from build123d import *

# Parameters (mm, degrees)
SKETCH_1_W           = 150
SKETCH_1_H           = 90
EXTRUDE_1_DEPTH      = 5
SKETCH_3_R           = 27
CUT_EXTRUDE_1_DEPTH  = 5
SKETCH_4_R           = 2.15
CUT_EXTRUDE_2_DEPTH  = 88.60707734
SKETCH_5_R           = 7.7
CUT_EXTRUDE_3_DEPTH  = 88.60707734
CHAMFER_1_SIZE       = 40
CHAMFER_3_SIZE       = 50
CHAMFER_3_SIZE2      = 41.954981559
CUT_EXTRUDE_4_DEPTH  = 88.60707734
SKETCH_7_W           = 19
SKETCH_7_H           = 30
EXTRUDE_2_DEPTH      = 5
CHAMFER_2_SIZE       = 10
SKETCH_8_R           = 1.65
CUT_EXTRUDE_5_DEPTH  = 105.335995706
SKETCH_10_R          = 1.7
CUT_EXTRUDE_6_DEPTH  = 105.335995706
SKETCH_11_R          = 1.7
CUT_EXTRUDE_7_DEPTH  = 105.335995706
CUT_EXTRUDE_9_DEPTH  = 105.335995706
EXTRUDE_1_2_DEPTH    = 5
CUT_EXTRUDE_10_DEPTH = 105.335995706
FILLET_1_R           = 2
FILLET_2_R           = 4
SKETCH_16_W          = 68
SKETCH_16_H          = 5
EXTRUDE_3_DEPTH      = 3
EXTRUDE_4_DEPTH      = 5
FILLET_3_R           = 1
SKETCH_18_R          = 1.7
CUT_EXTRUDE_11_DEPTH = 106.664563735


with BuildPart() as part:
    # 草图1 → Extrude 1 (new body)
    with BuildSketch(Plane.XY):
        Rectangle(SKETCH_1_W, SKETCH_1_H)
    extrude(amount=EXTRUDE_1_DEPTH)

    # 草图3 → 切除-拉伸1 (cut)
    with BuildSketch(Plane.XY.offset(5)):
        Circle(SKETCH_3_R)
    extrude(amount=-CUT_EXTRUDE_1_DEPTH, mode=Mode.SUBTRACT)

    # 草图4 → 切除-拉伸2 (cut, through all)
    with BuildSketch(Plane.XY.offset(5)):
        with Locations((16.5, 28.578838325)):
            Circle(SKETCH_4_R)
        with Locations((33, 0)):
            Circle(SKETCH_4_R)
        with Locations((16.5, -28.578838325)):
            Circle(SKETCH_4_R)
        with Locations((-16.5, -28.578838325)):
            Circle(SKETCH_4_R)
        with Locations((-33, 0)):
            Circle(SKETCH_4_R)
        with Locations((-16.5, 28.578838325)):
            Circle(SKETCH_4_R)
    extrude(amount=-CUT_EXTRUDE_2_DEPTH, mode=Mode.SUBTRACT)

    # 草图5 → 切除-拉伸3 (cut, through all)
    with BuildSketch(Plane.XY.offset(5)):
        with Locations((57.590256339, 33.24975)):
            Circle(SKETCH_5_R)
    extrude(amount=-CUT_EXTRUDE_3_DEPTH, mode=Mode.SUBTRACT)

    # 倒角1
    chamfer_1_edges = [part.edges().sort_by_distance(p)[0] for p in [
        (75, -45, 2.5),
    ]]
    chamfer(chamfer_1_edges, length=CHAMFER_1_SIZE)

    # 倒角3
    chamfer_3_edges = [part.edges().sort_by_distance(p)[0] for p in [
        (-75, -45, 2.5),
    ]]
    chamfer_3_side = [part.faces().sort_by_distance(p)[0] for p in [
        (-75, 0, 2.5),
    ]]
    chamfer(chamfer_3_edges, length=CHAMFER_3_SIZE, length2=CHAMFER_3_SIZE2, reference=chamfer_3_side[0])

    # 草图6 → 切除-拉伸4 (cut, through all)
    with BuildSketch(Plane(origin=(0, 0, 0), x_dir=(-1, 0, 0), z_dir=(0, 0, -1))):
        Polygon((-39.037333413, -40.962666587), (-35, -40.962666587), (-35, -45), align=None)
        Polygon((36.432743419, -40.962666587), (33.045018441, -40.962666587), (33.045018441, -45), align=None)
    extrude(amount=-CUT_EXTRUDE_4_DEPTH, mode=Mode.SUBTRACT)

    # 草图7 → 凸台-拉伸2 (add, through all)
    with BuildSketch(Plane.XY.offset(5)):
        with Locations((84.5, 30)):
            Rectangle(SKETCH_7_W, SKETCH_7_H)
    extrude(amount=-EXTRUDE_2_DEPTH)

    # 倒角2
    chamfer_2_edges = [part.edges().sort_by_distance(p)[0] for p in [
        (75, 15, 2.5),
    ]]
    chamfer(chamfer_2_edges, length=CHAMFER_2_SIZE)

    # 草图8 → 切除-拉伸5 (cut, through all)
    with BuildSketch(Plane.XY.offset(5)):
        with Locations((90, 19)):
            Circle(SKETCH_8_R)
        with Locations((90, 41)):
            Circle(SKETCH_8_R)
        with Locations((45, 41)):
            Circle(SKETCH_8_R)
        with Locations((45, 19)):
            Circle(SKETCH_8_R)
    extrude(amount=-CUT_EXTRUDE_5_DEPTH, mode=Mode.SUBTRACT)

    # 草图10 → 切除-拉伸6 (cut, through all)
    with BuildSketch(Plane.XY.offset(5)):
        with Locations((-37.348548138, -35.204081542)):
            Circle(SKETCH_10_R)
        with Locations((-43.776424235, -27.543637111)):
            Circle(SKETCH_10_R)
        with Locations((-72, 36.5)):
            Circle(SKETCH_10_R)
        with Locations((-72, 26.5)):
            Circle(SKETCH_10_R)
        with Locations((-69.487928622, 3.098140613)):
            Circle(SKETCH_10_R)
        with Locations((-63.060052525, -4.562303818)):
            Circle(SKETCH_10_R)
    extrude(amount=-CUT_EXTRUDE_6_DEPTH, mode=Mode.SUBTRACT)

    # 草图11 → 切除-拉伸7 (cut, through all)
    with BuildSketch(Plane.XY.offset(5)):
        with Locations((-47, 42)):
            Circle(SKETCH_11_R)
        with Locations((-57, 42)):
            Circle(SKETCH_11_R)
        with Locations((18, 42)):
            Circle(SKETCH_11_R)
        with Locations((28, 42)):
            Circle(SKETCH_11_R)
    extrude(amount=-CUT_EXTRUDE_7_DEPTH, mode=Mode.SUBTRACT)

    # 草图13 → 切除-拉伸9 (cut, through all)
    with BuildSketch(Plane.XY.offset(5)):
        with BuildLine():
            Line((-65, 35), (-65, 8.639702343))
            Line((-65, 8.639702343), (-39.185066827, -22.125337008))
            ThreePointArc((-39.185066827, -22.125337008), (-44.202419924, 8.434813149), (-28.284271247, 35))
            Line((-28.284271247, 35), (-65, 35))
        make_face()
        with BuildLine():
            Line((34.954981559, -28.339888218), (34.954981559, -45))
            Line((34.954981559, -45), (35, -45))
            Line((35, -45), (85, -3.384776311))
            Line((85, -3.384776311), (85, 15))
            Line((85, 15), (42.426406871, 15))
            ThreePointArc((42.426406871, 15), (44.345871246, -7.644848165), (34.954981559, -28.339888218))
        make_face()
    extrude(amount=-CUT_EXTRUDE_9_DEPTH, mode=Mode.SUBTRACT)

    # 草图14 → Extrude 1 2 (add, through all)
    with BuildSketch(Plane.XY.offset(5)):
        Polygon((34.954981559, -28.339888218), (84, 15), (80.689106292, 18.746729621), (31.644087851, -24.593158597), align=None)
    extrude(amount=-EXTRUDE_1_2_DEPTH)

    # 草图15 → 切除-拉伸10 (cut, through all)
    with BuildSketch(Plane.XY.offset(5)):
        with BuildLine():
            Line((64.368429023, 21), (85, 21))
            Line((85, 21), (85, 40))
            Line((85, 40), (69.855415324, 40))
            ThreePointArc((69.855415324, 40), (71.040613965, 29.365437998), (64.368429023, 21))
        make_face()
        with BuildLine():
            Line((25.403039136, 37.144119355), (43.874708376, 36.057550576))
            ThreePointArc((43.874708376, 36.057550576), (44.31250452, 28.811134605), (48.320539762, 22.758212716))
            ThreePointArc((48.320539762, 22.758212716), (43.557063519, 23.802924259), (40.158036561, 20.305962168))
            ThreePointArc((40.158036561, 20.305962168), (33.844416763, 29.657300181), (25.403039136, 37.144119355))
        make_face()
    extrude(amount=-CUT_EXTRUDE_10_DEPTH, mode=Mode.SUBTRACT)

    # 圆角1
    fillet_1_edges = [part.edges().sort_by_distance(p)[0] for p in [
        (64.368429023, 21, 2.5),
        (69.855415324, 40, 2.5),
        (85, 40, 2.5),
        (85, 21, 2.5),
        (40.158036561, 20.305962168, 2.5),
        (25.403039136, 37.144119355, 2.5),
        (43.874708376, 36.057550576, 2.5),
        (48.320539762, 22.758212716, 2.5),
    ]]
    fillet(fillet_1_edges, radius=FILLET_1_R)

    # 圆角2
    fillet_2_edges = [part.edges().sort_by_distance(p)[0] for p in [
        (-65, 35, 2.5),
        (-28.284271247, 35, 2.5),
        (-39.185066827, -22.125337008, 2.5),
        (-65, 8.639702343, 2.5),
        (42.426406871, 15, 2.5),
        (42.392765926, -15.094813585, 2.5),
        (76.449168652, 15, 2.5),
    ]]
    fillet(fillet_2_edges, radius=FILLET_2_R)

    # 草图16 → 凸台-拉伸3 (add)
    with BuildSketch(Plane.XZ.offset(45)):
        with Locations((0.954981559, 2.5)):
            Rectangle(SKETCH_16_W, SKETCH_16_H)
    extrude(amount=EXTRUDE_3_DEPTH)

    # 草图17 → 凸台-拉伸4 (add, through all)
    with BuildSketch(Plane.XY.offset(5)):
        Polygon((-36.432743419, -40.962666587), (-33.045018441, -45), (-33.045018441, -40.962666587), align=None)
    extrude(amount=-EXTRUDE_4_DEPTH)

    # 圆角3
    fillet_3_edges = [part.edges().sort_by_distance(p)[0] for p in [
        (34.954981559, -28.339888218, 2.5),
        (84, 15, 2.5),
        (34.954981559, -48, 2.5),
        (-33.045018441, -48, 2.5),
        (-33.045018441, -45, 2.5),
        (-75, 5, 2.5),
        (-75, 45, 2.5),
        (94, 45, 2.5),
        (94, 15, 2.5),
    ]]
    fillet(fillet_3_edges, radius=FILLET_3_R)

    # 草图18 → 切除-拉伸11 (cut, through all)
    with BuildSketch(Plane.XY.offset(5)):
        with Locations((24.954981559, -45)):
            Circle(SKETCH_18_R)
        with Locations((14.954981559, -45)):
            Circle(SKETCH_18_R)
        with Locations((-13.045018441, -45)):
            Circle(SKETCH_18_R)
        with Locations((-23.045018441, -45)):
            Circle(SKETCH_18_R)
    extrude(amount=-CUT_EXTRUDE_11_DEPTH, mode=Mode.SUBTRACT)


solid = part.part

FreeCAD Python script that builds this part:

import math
import FreeCAD as App
import Part
import Sketcher
Q = App.Units.Quantity


def edges_at(feature, points):
    """Names of the edges that pass closest to the given points."""
    edges = feature.Shape.Edges
    near = lambda p: min(range(len(edges)), key=lambda i: edges[i].distToShape(Part.Vertex(*p))[0])
    return sorted({f"Edge{near(p) + 1}" for p in points})

doc = App.newDocument("Part")
body = doc.addObject("PartDesign::Body", "Body")

# Sketch on XY plane
sketch1 = doc.addObject("Sketcher::SketchObject", "Sketch")
body.addObject(sketch1)
sketch1.AttachmentSupport = (doc.XY_Plane, [""])
sketch1.MapMode = "FlatFace"
sketch1.addGeometry(Part.LineSegment(App.Vector(-75, 45, 0), App.Vector(-75, -45, 0)), False)
sketch1.addGeometry(Part.LineSegment(App.Vector(-75, -45, 0), App.Vector(75, -45, 0)), False)
sketch1.addGeometry(Part.LineSegment(App.Vector(75, -45, 0), App.Vector(75, 45, 0)), False)
sketch1.addGeometry(Part.LineSegment(App.Vector(75, 45, 0), App.Vector(-75, 45, 0)), False)
sketch1.addConstraint(Sketcher.Constraint("Coincident", 0, 2, 1, 1))
sketch1.addConstraint(Sketcher.Constraint("Coincident", 1, 2, 2, 1))
sketch1.addConstraint(Sketcher.Constraint("Coincident", 2, 2, 3, 1))
sketch1.addConstraint(Sketcher.Constraint("Coincident", 3, 2, 0, 1))
sketch1.addConstraint(Sketcher.Constraint("Vertical", 0))
sketch1.addConstraint(Sketcher.Constraint("Horizontal", 1))
sketch1.addConstraint(Sketcher.Constraint("Vertical", 2))
sketch1.addConstraint(Sketcher.Constraint("Horizontal", 3))
sketch1.addConstraint(Sketcher.Constraint("Symmetric", 0, 2, 2, 2, -1, 1))
sketch1.addConstraint(Sketcher.Constraint("DistanceX", 1, 1, 1, 2, Q("150 mm")))
sketch1.addConstraint(Sketcher.Constraint("DistanceY", 0, 2, 0, 1, Q("90 mm")))
pad1 = doc.addObject("PartDesign::Pad", "Pad")
body.addObject(pad1)
pad1.Profile = sketch1
pad1.Length = 5

# Sketch on XY plane
sketch2 = doc.addObject("Sketcher::SketchObject", "Sketch001")
body.addObject(sketch2)
sketch2.AttachmentSupport = (doc.XY_Plane, [""])
sketch2.MapMode = "FlatFace"
sketch2.AttachmentOffset = App.Placement(App.Vector(0, 0, 5), App.Rotation())
sketch2.addGeometry(Part.Circle(App.Vector(0, 0, 0), App.Vector(0, 0, 1), 27), False)
sketch2.addConstraint(Sketcher.Constraint("Coincident", 0, 3, -1, 1))
sketch2.addConstraint(Sketcher.Constraint("Diameter", 0, Q("54 mm")))
pocket1 = doc.addObject("PartDesign::Pocket", "Pocket")
body.addObject(pocket1)
pocket1.Profile = sketch2
pocket1.Length = 5

# Sketch on XY plane
sketch3 = doc.addObject("Sketcher::SketchObject", "Sketch002")
body.addObject(sketch3)
sketch3.AttachmentSupport = (doc.XY_Plane, [""])
sketch3.MapMode = "FlatFace"
sketch3.AttachmentOffset = App.Placement(App.Vector(0, 0, 5), App.Rotation())
sketch3.addGeometry(Part.Circle(App.Vector(16.5, 28.578838, 0), App.Vector(0, 0, 1), 2.15), False)
sketch3.addGeometry(Part.Circle(App.Vector(33, 0, 0), App.Vector(0, 0, 1), 2.15), False)
sketch3.addGeometry(Part.Circle(App.Vector(16.5, -28.578838, 0), App.Vector(0, 0, 1), 2.15), False)
sketch3.addGeometry(Part.Circle(App.Vector(-16.5, -28.578838, 0), App.Vector(0, 0, 1), 2.15), False)
sketch3.addGeometry(Part.Circle(App.Vector(-33, 0, 0), App.Vector(0, 0, 1), 2.15), False)
sketch3.addGeometry(Part.Circle(App.Vector(-16.5, 28.578838, 0), App.Vector(0, 0, 1), 2.15), False)
sketch3.addConstraint(Sketcher.Constraint("Equal", 0, 1))
sketch3.addConstraint(Sketcher.Constraint("Equal", 1, 2))
sketch3.addConstraint(Sketcher.Constraint("Equal", 2, 3))
sketch3.addConstraint(Sketcher.Constraint("Equal", 3, 4))
sketch3.addConstraint(Sketcher.Constraint("Equal", 4, 5))
sketch3.addConstraint(Sketcher.Constraint("Symmetric", 0, 3, 3, 3, -1, 1))
sketch3.addConstraint(Sketcher.Constraint("Symmetric", 1, 3, 4, 3, -1, 1))
sketch3.addConstraint(Sketcher.Constraint("Symmetric", 2, 3, 5, 3, -1, 1))
sketch3.addConstraint(Sketcher.Constraint("Symmetric", 2, 3, 3, 3, -2))
sketch3.addConstraint(Sketcher.Constraint("PointOnObject", 1, 3, -1))
sketch3.addConstraint(Sketcher.Constraint("Diameter", 0, Q("4.3 mm")))
sketch3.addConstraint(Sketcher.Constraint("DistanceX", -1, 1, 1, 3, Q("33 mm")))
sketch3.addConstraint(Sketcher.Constraint("DistanceX", 3, 3, 2, 3, Q("33 mm")))
sketch3.addConstraint(Sketcher.Constraint("DistanceY", -1, 1, 0, 3, Q("28.578838 mm")))
pocket2 = doc.addObject("PartDesign::Pocket", "Pocket001")
body.addObject(pocket2)
pocket2.Profile = sketch3
pocket2.Type = "ThroughAll"

# Sketch on XY plane
sketch4 = doc.addObject("Sketcher::SketchObject", "Sketch003")
body.addObject(sketch4)
sketch4.AttachmentSupport = (doc.XY_Plane, [""])
sketch4.MapMode = "FlatFace"
sketch4.AttachmentOffset = App.Placement(App.Vector(0, 0, 5), App.Rotation())
sketch4.addGeometry(Part.Circle(App.Vector(57.590256, 33.24975, 0), App.Vector(0, 0, 1), 7.7), False)
sketch4.addConstraint(Sketcher.Constraint("Diameter", 0, Q("15.4 mm")))
sketch4.addConstraint(Sketcher.Constraint("DistanceY", -1, 1, 0, 3, Q("33.24975 mm")))
sketch4.addConstraint(Sketcher.Constraint("DistanceX", -1, 1, 0, 3, Q("57.590256 mm")))
pocket3 = doc.addObject("PartDesign::Pocket", "Pocket002")
body.addObject(pocket3)
pocket3.Profile = sketch4
pocket3.Type = "ThroughAll"
doc.recompute()

chamfer = doc.addObject("PartDesign::Chamfer", "Chamfer")
body.addObject(chamfer)
chamfer.Base = (pocket3, edges_at(pocket3, [(75, -45, 2.5)]))
chamfer.Size = 40
doc.recompute()

chamfer2 = doc.addObject("PartDesign::Chamfer", "Chamfer001")
body.addObject(chamfer2)
chamfer2.Base = (chamfer, edges_at(chamfer, [(-75, -45, 2.5)]))
chamfer2.ChamferType = "Two distances"
chamfer2.Size = 50
chamfer2.Size2 = 41.954982
chamfer2.FlipDirection = True

# Sketch on XY plane
sketch5 = doc.addObject("Sketcher::SketchObject", "Sketch004")
body.addObject(sketch5)
sketch5.AttachmentSupport = (doc.XY_Plane, [""])
sketch5.MapMode = "FlatFace"
sketch5.addGeometry(Part.LineSegment(App.Vector(35, -40.962667, 0), App.Vector(39.037333, -40.962667, 0)), False)
sketch5.addGeometry(Part.LineSegment(App.Vector(39.037333, -40.962667, 0), App.Vector(35, -45, 0)), False)
sketch5.addGeometry(Part.LineSegment(App.Vector(35, -45, 0), App.Vector(35, -40.962667, 0)), False)
sketch5.addGeometry(Part.LineSegment(App.Vector(-36.432743, -40.962667, 0), App.Vector(-33.045018, -40.962667, 0)), False)
sketch5.addGeometry(Part.LineSegment(App.Vector(-33.045018, -40.962667, 0), App.Vector(-33.045018, -45, 0)), False)
sketch5.addGeometry(Part.LineSegment(App.Vector(-33.045018, -45, 0), App.Vector(-36.432743, -40.962667, 0)), False)
sketch5.addConstraint(Sketcher.Constraint("Coincident", 0, 2, 1, 1))
sketch5.addConstraint(Sketcher.Constraint("Coincident", 1, 2, 2, 1))
sketch5.addConstraint(Sketcher.Constraint("Coincident", 2, 2, 0, 1))
sketch5.addConstraint(Sketcher.Constraint("Coincident", 3, 2, 4, 1))
sketch5.addConstraint(Sketcher.Constraint("Coincident", 4, 2, 5, 1))
sketch5.addConstraint(Sketcher.Constraint("Coincident", 5, 2, 3, 1))
sketch5.addConstraint(Sketcher.Constraint("Horizontal", 0))
sketch5.addConstraint(Sketcher.Constraint("Vertical", 2))
sketch5.addConstraint(Sketcher.Constraint("Horizontal", 3))
sketch5.addConstraint(Sketcher.Constraint("Vertical", 4))
sketch5.addConstraint(Sketcher.Constraint("Horizontal", 2, 2, 3, 2))
sketch5.addConstraint(Sketcher.Constraint("Horizontal", 1, 2, 4, 2))
sketch5.addConstraint(Sketcher.Constraint("Equal", 0, 2))
sketch5.addConstraint(Sketcher.Constraint("Angle", 5, Q("130 deg")))
sketch5.addConstraint(Sketcher.Constraint("DistanceX", -1, 1, 1, 2, Q("35 mm")))
sketch5.addConstraint(Sketcher.Constraint("DistanceY", 1, 2, -1, 1, Q("45 mm")))
sketch5.addConstraint(Sketcher.Constraint("Distance", 1, Q("5.709652 mm")))
sketch5.addConstraint(Sketcher.Constraint("DistanceX", 3, 2, -1, 1, Q("33.045018 mm")))
pocket4 = doc.addObject("PartDesign::Pocket", "Pocket003")
body.addObject(pocket4)
pocket4.Profile = sketch5
pocket4.Type = "ThroughAll"
pocket4.Reversed = True

# Sketch on XY plane
sketch6 = doc.addObject("Sketcher::SketchObject", "Sketch005")
body.addObject(sketch6)
sketch6.AttachmentSupport = (doc.XY_Plane, [""])
sketch6.MapMode = "FlatFace"
sketch6.AttachmentOffset = App.Placement(App.Vector(0, 0, 5), App.Rotation())
sketch6.addGeometry(Part.LineSegment(App.Vector(75, 45, 0), App.Vector(75, 15, 0)), False)
sketch6.addGeometry(Part.LineSegment(App.Vector(75, 15, 0), App.Vector(94, 15, 0)), False)
sketch6.addGeometry(Part.LineSegment(App.Vector(94, 15, 0), App.Vector(94, 45, 0)), False)
sketch6.addGeometry(Part.LineSegment(App.Vector(94, 45, 0), App.Vector(75, 45, 0)), False)
sketch6.addConstraint(Sketcher.Constraint("Coincident", 0, 2, 1, 1))
sketch6.addConstraint(Sketcher.Constraint("Coincident", 1, 2, 2, 1))
sketch6.addConstraint(Sketcher.Constraint("Coincident", 2, 2, 3, 1))
sketch6.addConstraint(Sketcher.Constraint("Coincident", 3, 2, 0, 1))
sketch6.addConstraint(Sketcher.Constraint("Vertical", 0))
sketch6.addConstraint(Sketcher.Constraint("Horizontal", 1))
sketch6.addConstraint(Sketcher.Constraint("Vertical", 2))
sketch6.addConstraint(Sketcher.Constraint("Horizontal", 3))
sketch6.addConstraint(Sketcher.Constraint("DistanceX", 1, 1, 1, 2, Q("19 mm")))
sketch6.addConstraint(Sketcher.Constraint("DistanceY", 0, 2, 0, 1, Q("30 mm")))
sketch6.addConstraint(Sketcher.Constraint("DistanceX", -1, 1, 0, 2, Q("75 mm")))
sketch6.addConstraint(Sketcher.Constraint("DistanceY", -1, 1, 0, 2, Q("15 mm")))
pad2 = doc.addObject("PartDesign::Pad", "Pad001")
body.addObject(pad2)
pad2.Profile = sketch6
pad2.Length = 5
pad2.Reversed = True
doc.recompute()

chamfer3 = doc.addObject("PartDesign::Chamfer", "Chamfer002")
body.addObject(chamfer3)
chamfer3.Base = (pad2, edges_at(pad2, [(75, 15, 2.5)]))
chamfer3.Size = 10

# Sketch on XY plane
sketch7 = doc.addObject("Sketcher::SketchObject", "Sketch006")
body.addObject(sketch7)
sketch7.AttachmentSupport = (doc.XY_Plane, [""])
sketch7.MapMode = "FlatFace"
sketch7.AttachmentOffset = App.Placement(App.Vector(0, 0, 5), App.Rotation())
sketch7.addGeometry(Part.Circle(App.Vector(90, 19, 0), App.Vector(0, 0, 1), 1.65), False)
sketch7.addGeometry(Part.Circle(App.Vector(90, 41, 0), App.Vector(0, 0, 1), 1.65), False)
sketch7.addGeometry(Part.Circle(App.Vector(45, 41, 0), App.Vector(0, 0, 1), 1.65), False)
sketch7.addGeometry(Part.Circle(App.Vector(45, 19, 0), App.Vector(0, 0, 1), 1.65), False)
sketch7.addConstraint(Sketcher.Constraint("Equal", 0, 1))
sketch7.addConstraint(Sketcher.Constraint("Equal", 1, 2))
sketch7.addConstraint(Sketcher.Constraint("Equal", 2, 3))
sketch7.addConstraint(Sketcher.Constraint("Horizontal", 1, 3, 2, 3))
sketch7.addConstraint(Sketcher.Constraint("Horizontal", 0, 3, 3, 3))
sketch7.addConstraint(Sketcher.Constraint("Vertical", 0, 3, 1, 3))
sketch7.addConstraint(Sketcher.Constraint("Vertical", 2, 3, 3, 3))
sketch7.addConstraint(Sketcher.Constraint("Diameter", 0, Q("3.3 mm")))
sketch7.addConstraint(Sketcher.Constraint("DistanceX", -1, 1, 0, 3, Q("90 mm")))
sketch7.addConstraint(Sketcher.Constraint("DistanceY", -1, 1, 0, 3, Q("19 mm")))
sketch7.addConstraint(Sketcher.Constraint("DistanceY", -1, 1, 1, 3, Q("41 mm")))
sketch7.addConstraint(Sketcher.Constraint("DistanceX", -1, 1, 2, 3, Q("45 mm")))
pocket5 = doc.addObject("PartDesign::Pocket", "Pocket004")
body.addObject(pocket5)
pocket5.Profile = sketch7
pocket5.Type = "ThroughAll"

# Sketch on XY plane
sketch8 = doc.addObject("Sketcher::SketchObject", "Sketch007")
body.addObject(sketch8)
sketch8.AttachmentSupport = (doc.XY_Plane, [""])
sketch8.MapMode = "FlatFace"
sketch8.AttachmentOffset = App.Placement(App.Vector(0, 0, 5), App.Rotation())
sketch8.addGeometry(Part.Circle(App.Vector(-37.348548, -35.204082, 0), App.Vector(0, 0, 1), 1.7), False)
sketch8.addGeometry(Part.Circle(App.Vector(-43.776424, -27.543637, 0), App.Vector(0, 0, 1), 1.7), False)
sketch8.addGeometry(Part.Circle(App.Vector(-72, 36.5, 0), App.Vector(0, 0, 1), 1.7), False)
sketch8.addGeometry(Part.Circle(App.Vector(-72, 26.5, 0), App.Vector(0, 0, 1), 1.7), False)
sketch8.addGeometry(Part.Circle(App.Vector(-69.487929, 3.098141, 0), App.Vector(0, 0, 1), 1.7), False)
sketch8.addGeometry(Part.Circle(App.Vector(-63.060053, -4.562304, 0), App.Vector(0, 0, 1), 1.7), False)
sketch8.addConstraint(Sketcher.Constraint("Equal", 0, 1))
sketch8.addConstraint(Sketcher.Constraint("Equal", 1, 2))
sketch8.addConstraint(Sketcher.Constraint("Equal", 2, 3))
sketch8.addConstraint(Sketcher.Constraint("Equal", 3, 4))
sketch8.addConstraint(Sketcher.Constraint("Equal", 4, 5))
sketch8.addConstraint(Sketcher.Constraint("Vertical", 2, 3, 3, 3))
sketch8.addConstraint(Sketcher.Constraint("Diameter", 0, Q("3.4 mm")))
sketch8.addConstraint(Sketcher.Constraint("DistanceX", 2, 3, -1, 1, Q("72 mm")))
sketch8.addConstraint(Sketcher.Constraint("DistanceY", 3, 3, 2, 3, Q("10 mm")))
sketch8.addConstraint(Sketcher.Constraint("DistanceY", -1, 1, 2, 3, Q("36.5 mm")))
sketch8.addConstraint(Sketcher.Constraint("DistanceX", 0, 3, -1, 1, Q("37.348548 mm")))
sketch8.addConstraint(Sketcher.Constraint("DistanceY", 0, 3, -1, 1, Q("35.204082 mm")))
sketch8.addConstraint(Sketcher.Constraint("DistanceX", 4, 3, -1, 1, Q("69.487929 mm")))
sketch8.addConstraint(Sketcher.Constraint("DistanceY", -1, 1, 4, 3, Q("3.098141 mm")))
sketch8.addConstraint(Sketcher.Constraint("DistanceX", 5, 3, 1, 3, Q("19.283628 mm")))
sketch8.addConstraint(Sketcher.Constraint("DistanceX", 1, 3, -1, 1, Q("43.776424 mm")))
sketch8.addConstraint(Sketcher.Constraint("DistanceY", 1, 3, -1, 1, Q("27.543637 mm")))
sketch8.addConstraint(Sketcher.Constraint("DistanceY", 5, 3, -1, 1, Q("4.562304 mm")))
pocket6 = doc.addObject("PartDesign::Pocket", "Pocket005")
body.addObject(pocket6)
pocket6.Profile = sketch8
pocket6.Type = "ThroughAll"

# Sketch on XY plane
sketch9 = doc.addObject("Sketcher::SketchObject", "Sketch008")
body.addObject(sketch9)
sketch9.AttachmentSupport = (doc.XY_Plane, [""])
sketch9.MapMode = "FlatFace"
sketch9.AttachmentOffset = App.Placement(App.Vector(0, 0, 5), App.Rotation())
sketch9.addGeometry(Part.Circle(App.Vector(-47, 42, 0), App.Vector(0, 0, 1), 1.7), False)
sketch9.addGeometry(Part.Circle(App.Vector(-57, 42, 0), App.Vector(0, 0, 1), 1.7), False)
sketch9.addGeometry(Part.Circle(App.Vector(18, 42, 0), App.Vector(0, 0, 1), 1.7), False)
sketch9.addGeometry(Part.Circle(App.Vector(28, 42, 0), App.Vector(0, 0, 1), 1.7), False)
sketch9.addConstraint(Sketcher.Constraint("Equal", 0, 1))
sketch9.addConstraint(Sketcher.Constraint("Equal", 1, 2))
sketch9.addConstraint(Sketcher.Constraint("Equal", 2, 3))
sketch9.addConstraint(Sketcher.Constraint("Horizontal", 0, 3, 1, 3))
sketch9.addConstraint(Sketcher.Constraint("Horizontal", 1, 3, 2, 3))
sketch9.addConstraint(Sketcher.Constraint("Horizontal", 2, 3, 3, 3))
sketch9.addConstraint(Sketcher.Constraint("Diameter", 0, Q("3.4 mm")))
sketch9.addConstraint(Sketcher.Constraint("DistanceX", 0, 3, -1, 1, Q("47 mm")))
sketch9.addConstraint(Sketcher.Constraint("DistanceY", -1, 1, 0, 3, Q("42 mm")))
sketch9.addConstraint(Sketcher.Constraint("DistanceX", 1, 3, -1, 1, Q("57 mm")))
sketch9.addConstraint(Sketcher.Constraint("DistanceX", -1, 1, 2, 3, Q("18 mm")))
sketch9.addConstraint(Sketcher.Constraint("DistanceX", -1, 1, 3, 3, Q("28 mm")))
pocket7 = doc.addObject("PartDesign::Pocket", "Pocket006")
body.addObject(pocket7)
pocket7.Profile = sketch9
pocket7.Type = "ThroughAll"

# Sketch on XY plane
sketch10 = doc.addObject("Sketcher::SketchObject", "Sketch009")
body.addObject(sketch10)
sketch10.AttachmentSupport = (doc.XY_Plane, [""])
sketch10.MapMode = "FlatFace"
sketch10.AttachmentOffset = App.Placement(App.Vector(0, 0, 5), App.Rotation())
sketch10.addGeometry(Part.LineSegment(App.Vector(-65, 35, 0), App.Vector(-65, 8.639702, 0)), False)
sketch10.addGeometry(Part.LineSegment(App.Vector(-65, 8.639702, 0), App.Vector(-39.185067, -22.125337, 0)), False)
sketch10.addGeometry(Part.ArcOfCircle(Part.Circle(App.Vector(0, 0, 0), App.Vector(0, 0, 1), 45), math.radians(128.942441), math.radians(209.450678)), False)
sketch10.addGeometry(Part.LineSegment(App.Vector(-28.284271, 35, 0), App.Vector(-65, 35, 0)), False)
sketch10.addGeometry(Part.LineSegment(App.Vector(34.954982, -28.339888, 0), App.Vector(34.954982, -45, 0)), False)
sketch10.addGeometry(Part.LineSegment(App.Vector(34.954982, -45, 0), App.Vector(35, -45, 0)), False)
sketch10.addGeometry(Part.LineSegment(App.Vector(35, -45, 0), App.Vector(85, -3.384776, 0)), False)
sketch10.addGeometry(Part.LineSegment(App.Vector(85, -3.384776, 0), App.Vector(85, 15, 0)), False)
sketch10.addGeometry(Part.LineSegment(App.Vector(85, 15, 0), App.Vector(42.426407, 15, 0)), False)
sketch10.addGeometry(Part.ArcOfCircle(Part.Circle(App.Vector(0, 0, 0), App.Vector(0, 0, 1), 45), math.radians(-39.033546), math.radians(19.471221)), False)
sketch10.addConstraint(Sketcher.Constraint("Coincident", 0, 2, 1, 1))
sketch10.addConstraint(Sketcher.Constraint("Coincident", 1, 2, 2, 2))
sketch10.addConstraint(Sketcher.Constraint("Coincident", 2, 1, 3, 1))
sketch10.addConstraint(Sketcher.Constraint("Coincident", 3, 2, 0, 1))
sketch10.addConstraint(Sketcher.Constraint("Coincident", 4, 2, 5, 1))
sketch10.addConstraint(Sketcher.Constraint("Coincident", 5, 2, 6, 1))
sketch10.addConstraint(Sketcher.Constraint("Coincident", 6, 2, 7, 1))
sketch10.addConstraint(Sketcher.Constraint("Coincident", 7, 2, 8, 1))
sketch10.addConstraint(Sketcher.Constraint("Coincident", 8, 2, 9, 2))
sketch10.addConstraint(Sketcher.Constraint("Coincident", 9, 1, 4, 1))
sketch10.addConstraint(Sketcher.Constraint("Vertical", 0))
sketch10.addConstraint(Sketcher.Constraint("Horizontal", 3))
sketch10.addConstraint(Sketcher.Constraint("Vertical", 4))
sketch10.addConstraint(Sketcher.Constraint("Horizontal", 5))
sketch10.addConstraint(Sketcher.Constraint("Vertical", 7))
sketch10.addConstraint(Sketcher.Constraint("Horizontal", 8))
sketch10.addConstraint(Sketcher.Constraint("Coincident", 2, 3, -1, 1))
sketch10.addConstraint(Sketcher.Constraint("Coincident", 9, 3, -1, 1))
sketch10.addConstraint(Sketcher.Constraint("Equal", 2, 9))
sketch10.addConstraint(Sketcher.Constraint("Radius", 2, Q("45 mm")))
sketch10.addConstraint(Sketcher.Constraint("Angle", 1, Q("-50 deg")))
sketch10.addConstraint(Sketcher.Constraint("DistanceX", 0, 2, -1, 1, Q("65 mm")))
sketch10.addConstraint(Sketcher.Constraint("DistanceY", -1, 1, 2, 1, Q("35 mm")))
sketch10.addConstraint(Sketcher.Constraint("DistanceY", 4, 2, -1, 1, Q("45 mm")))
sketch10.addConstraint(Sketcher.Constraint("DistanceX", -1, 1, 5, 2, Q("35 mm")))
sketch10.addConstraint(Sketcher.Constraint("DistanceX", -1, 1, 6, 2, Q("85 mm")))
sketch10.addConstraint(Sketcher.Constraint("DistanceY", -1, 1, 7, 2, Q("15 mm")))
sketch10.addConstraint(Sketcher.Constraint("DistanceX", 5, 1, 5, 2, Q("0.045018 mm")))
sketch10.addConstraint(Sketcher.Constraint("DistanceY", 0, 2, 0, 1, Q("26.360298 mm")))
sketch10.addConstraint(Sketcher.Constraint("DistanceY", 7, 1, 7, 2, Q("18.384776 mm")))
pocket8 = doc.addObject("PartDesign::Pocket", "Pocket007")
body.addObject(pocket8)
pocket8.Profile = sketch10
pocket8.Type = "ThroughAll"

# Sketch on XY plane
sketch11 = doc.addObject("Sketcher::SketchObject", "Sketch010")
body.addObject(sketch11)
sketch11.AttachmentSupport = (doc.XY_Plane, [""])
sketch11.MapMode = "FlatFace"
sketch11.AttachmentOffset = App.Placement(App.Vector(0, 0, 5), App.Rotation())
sketch11.addGeometry(Part.LineSegment(App.Vector(34.954982, -28.339888, 0), App.Vector(84, 15, 0)), False)
sketch11.addGeometry(Part.LineSegment(App.Vector(84, 15, 0), App.Vector(80.689106, 18.74673, 0)), False)
sketch11.addGeometry(Part.LineSegment(App.Vector(80.689106, 18.74673, 0), App.Vector(31.644088, -24.593159, 0)), False)
sketch11.addGeometry(Part.LineSegment(App.Vector(31.644088, -24.593159, 0), App.Vector(34.954982, -28.339888, 0)), False)
sketch11.addConstraint(Sketcher.Constraint("Coincident", 0, 2, 1, 1))
sketch11.addConstraint(Sketcher.Constraint("Coincident", 1, 2, 2, 1))
sketch11.addConstraint(Sketcher.Constraint("Coincident", 2, 2, 3, 1))
sketch11.addConstraint(Sketcher.Constraint("Coincident", 3, 2, 0, 1))
sketch11.addConstraint(Sketcher.Constraint("Perpendicular", 0, 1))
sketch11.addConstraint(Sketcher.Constraint("Perpendicular", 1, 2))
sketch11.addConstraint(Sketcher.Constraint("Perpendicular", 2, 3))
sketch11.addConstraint(Sketcher.Constraint("Distance", 1, Q("5 mm")))
sketch11.addConstraint(Sketcher.Constraint("DistanceX", -1, 1, 0, 2, Q("84 mm")))
sketch11.addConstraint(Sketcher.Constraint("DistanceY", -1, 1, 0, 2, Q("15 mm")))
sketch11.addConstraint(Sketcher.Constraint("DistanceY", -1, 1, 1, 2, Q("18.74673 mm")))
sketch11.addConstraint(Sketcher.Constraint("DistanceY", 2, 2, -1, 1, Q("24.593159 mm")))
pad3 = doc.addObject("PartDesign::Pad", "Pad002")
body.addObject(pad3)
pad3.Profile = sketch11
pad3.Length = 5
pad3.Reversed = True

# Sketch on XY plane
sketch12 = doc.addObject("Sketcher::SketchObject", "Sketch011")
body.addObject(sketch12)
sketch12.AttachmentSupport = (doc.XY_Plane, [""])
sketch12.MapMode = "FlatFace"
sketch12.AttachmentOffset = App.Placement(App.Vector(0, 0, 5), App.Rotation())
sketch12.addGeometry(Part.LineSegment(App.Vector(64.368429, 21, 0), App.Vector(85, 21, 0)), False)
sketch12.addGeometry(Part.LineSegment(App.Vector(85, 21, 0), App.Vector(85, 40, 0)), False)
sketch12.addGeometry(Part.LineSegment(App.Vector(85, 40, 0), App.Vector(69.855415, 40, 0)), False)
sketch12.addGeometry(Part.ArcOfCircle(Part.Circle(App.Vector(57.590256, 33.24975, 0), App.Vector(0, 0, 1), 14), math.radians(-61.042862), math.radians(28.826617)), False)
sketch12.addGeometry(Part.LineSegment(App.Vector(43.874708, 36.057551, 0), App.Vector(25.403039, 37.144119, 0)), False)
sketch12.addGeometry(Part.ArcOfCircle(Part.Circle(App.Vector(0, 0, 0), App.Vector(0, 0, 1), 45), math.radians(26.8235), math.radians(55.631591)), False)
sketch12.addGeometry(Part.ArcOfCircle(Part.Circle(App.Vector(45, 19, 0), App.Vector(0, 0, 1), 5.014992), math.radians(48.538043), math.radians(164.905513)), False)
sketch12.addGeometry(Part.ArcOfCircle(Part.Circle(App.Vector(57.590256, 33.24975, 0), App.Vector(0, 0, 1), 14), math.radians(168.430456), math.radians(228.538043)), False)
sketch12.addConstraint(Sketcher.Constraint("Coincident", 0, 2, 1, 1))
sketch12.addConstraint(Sketcher.Constraint("Coincident", 1, 2, 2, 1))
sketch12.addConstraint(Sketcher.Constraint("Coincident", 2, 2, 3, 2))
sketch12.addConstraint(Sketcher.Constraint("Coincident", 3, 1, 0, 1))
sketch12.addConstraint(Sketcher.Constraint("Coincident", 4, 2, 5, 2))
sketch12.addConstraint(Sketcher.Constraint("Coincident", 5, 1, 6, 2))
sketch12.addConstraint(Sketcher.Constraint("Tangent", 6, 1, 7, 2))
sketch12.addConstraint(Sketcher.Constraint("Coincident", 7, 1, 4, 1))
sketch12.addConstraint(Sketcher.Constraint("Horizontal", 0))
sketch12.addConstraint(Sketcher.Constraint("Vertical", 1))
sketch12.addConstraint(Sketcher.Constraint("Horizontal", 2))
sketch12.addConstraint(Sketcher.Constraint("Coincident", 5, 3, -1, 1))
sketch12.addConstraint(Sketcher.Constraint("Coincident", 7, 3, 3, 3))
sketch12.addConstraint(Sketcher.Constraint("Equal", 3, 7))
sketch12.addConstraint(Sketcher.Constraint("Radius", 3, Q("14 mm")))
sketch12.addConstraint(Sketcher.Constraint("Radius", 5, Q("45 mm")))
sketch12.addConstraint(Sketcher.Constraint("DistanceY", 1, 1, 1, 2, Q("19 mm")))
sketch12.addConstraint(Sketcher.Constraint("DistanceX", -1, 1, 6, 3, Q("45 mm")))
sketch12.addConstraint(Sketcher.Constraint("DistanceY", -1, 1, 6, 3, Q("19 mm")))
sketch12.addConstraint(Sketcher.Constraint("DistanceX", -1, 1, 0, 2, Q("85 mm")))
sketch12.addConstraint(Sketcher.Constraint("DistanceY", -1, 1, 0, 2, Q("21 mm")))
sketch12.addConstraint(Sketcher.Constraint("Radius", 6, Q("5.014992 mm")))
sketch12.addConstraint(Sketcher.Constraint("Distance", 4, Q("18.5036 mm")))
sketch12.addConstraint(Sketcher.Constraint("DistanceX", 0, 1, 0, 2, Q("20.631571 mm")))
sketch12.addConstraint(Sketcher.Constraint("DistanceY", 3, 3, 7, 1, Q("2.807801 mm")))
pocket9 = doc.addObject("PartDesign::Pocket", "Pocket008")
body.addObject(pocket9)
pocket9.Profile = sketch12
pocket9.Type = "ThroughAll"
doc.recompute()

fillet = doc.addObject("PartDesign::Fillet", "Fillet")
body.addObject(fillet)
fillet.Base = (pocket9, edges_at(pocket9, [
    (64.368, 21, 2.5),
    (69.855, 40, 2.5),
    (85, 40, 2.5),
    (85, 21, 2.5),
    (40.158, 20.306, 2.5),
    (25.403, 37.144, 2.5),
    (43.875, 36.058, 2.5),
    (48.321, 22.758, 2.5),
]))
fillet.Radius = 2
doc.recompute()

fillet2 = doc.addObject("PartDesign::Fillet", "Fillet001")
body.addObject(fillet2)
fillet2.Base = (fillet, edges_at(fillet, [
    (-65, 35, 2.5),
    (-28.284, 35, 2.5),
    (-39.185, -22.125, 2.5),
    (-65, 8.64, 2.5),
    (42.426, 15, 2.5),
    (42.393, -15.095, 2.5),
    (76.449, 15, 2.5),
]))
fillet2.Radius = 4

# Sketch on XZ plane
sketch13 = doc.addObject("Sketcher::SketchObject", "Sketch012")
body.addObject(sketch13)
sketch13.AttachmentSupport = (doc.XZ_Plane, [""])
sketch13.MapMode = "FlatFace"
sketch13.AttachmentOffset = App.Placement(App.Vector(0, 0, 45), App.Rotation())
sketch13.addGeometry(Part.LineSegment(App.Vector(-33.045018, 5, 0), App.Vector(-33.045018, 0, 0)), False)
sketch13.addGeometry(Part.LineSegment(App.Vector(-33.045018, 0, 0), App.Vector(34.954982, 0, 0)), False)
sketch13.addGeometry(Part.LineSegment(App.Vector(34.954982, 0, 0), App.Vector(34.954982, 5, 0)), False)
sketch13.addGeometry(Part.LineSegment(App.Vector(34.954982, 5, 0), App.Vector(-33.045018, 5, 0)), False)
sketch13.addConstraint(Sketcher.Constraint("Coincident", 0, 2, 1, 1))
sketch13.addConstraint(Sketcher.Constraint("Coincident", 1, 2, 2, 1))
sketch13.addConstraint(Sketcher.Constraint("Coincident", 2, 2, 3, 1))
sketch13.addConstraint(Sketcher.Constraint("Coincident", 3, 2, 0, 1))
sketch13.addConstraint(Sketcher.Constraint("Vertical", 0))
sketch13.addConstraint(Sketcher.Constraint("Horizontal", 1))
sketch13.addConstraint(Sketcher.Constraint("Vertical", 2))
sketch13.addConstraint(Sketcher.Constraint("Horizontal", 3))
sketch13.addConstraint(Sketcher.Constraint("PointOnObject", 0, 2, -1))
sketch13.addConstraint(Sketcher.Constraint("DistanceX", 1, 1, 1, 2, Q("68 mm")))
sketch13.addConstraint(Sketcher.Constraint("DistanceY", 0, 2, 0, 1, Q("5 mm")))
sketch13.addConstraint(Sketcher.Constraint("DistanceX", 0, 2, -1, 1, Q("33.045018 mm")))
pad4 = doc.addObject("PartDesign::Pad", "Pad003")
body.addObject(pad4)
pad4.Profile = sketch13
pad4.Length = 3

# Sketch on XY plane
sketch14 = doc.addObject("Sketcher::SketchObject", "Sketch013")
body.addObject(sketch14)
sketch14.AttachmentSupport = (doc.XY_Plane, [""])
sketch14.MapMode = "FlatFace"
sketch14.AttachmentOffset = App.Placement(App.Vector(0, 0, 5), App.Rotation())
sketch14.addGeometry(Part.LineSegment(App.Vector(-36.432743, -40.962667, 0), App.Vector(-33.045018, -45, 0)), False)
sketch14.addGeometry(Part.LineSegment(App.Vector(-33.045018, -45, 0), App.Vector(-33.045018, -40.962667, 0)), False)
sketch14.addGeometry(Part.LineSegment(App.Vector(-33.045018, -40.962667, 0), App.Vector(-36.432743, -40.962667, 0)), False)
sketch14.addConstraint(Sketcher.Constraint("Coincident", 0, 2, 1, 1))
sketch14.addConstraint(Sketcher.Constraint("Coincident", 1, 2, 2, 1))
sketch14.addConstraint(Sketcher.Constraint("Coincident", 2, 2, 0, 1))
sketch14.addConstraint(Sketcher.Constraint("Vertical", 1))
sketch14.addConstraint(Sketcher.Constraint("Horizontal", 2))
sketch14.addConstraint(Sketcher.Constraint("Angle", 0, Q("-50 deg")))
sketch14.addConstraint(Sketcher.Constraint("DistanceY", 0, 2, -1, 1, Q("45 mm")))
sketch14.addConstraint(Sketcher.Constraint("DistanceX", 2, 2, 2, 1, Q("3.387725 mm")))
sketch14.addConstraint(Sketcher.Constraint("DistanceX", 0, 2, -1, 1, Q("33.045018 mm")))
pad5 = doc.addObject("PartDesign::Pad", "Pad004")
body.addObject(pad5)
pad5.Profile = sketch14
pad5.Length = 5
pad5.Reversed = True
doc.recompute()

fillet3 = doc.addObject("PartDesign::Fillet", "Fillet002")
body.addObject(fillet3)
fillet3.Base = (pad5, edges_at(pad5, [
    (34.955, -28.34, 2.5),
    (84, 15, 2.5),
    (34.955, -48, 2.5),
    (-33.045, -48, 2.5),
    (-33.045, -45, 2.5),
    (-75, 5, 2.5),
    (-75, 45, 2.5),
    (94, 45, 2.5),
    (94, 15, 2.5),
]))
fillet3.Radius = 1

# Sketch on XY plane
sketch15 = doc.addObject("Sketcher::SketchObject", "Sketch014")
body.addObject(sketch15)
sketch15.AttachmentSupport = (doc.XY_Plane, [""])
sketch15.MapMode = "FlatFace"
sketch15.AttachmentOffset = App.Placement(App.Vector(0, 0, 5), App.Rotation())
sketch15.addGeometry(Part.Circle(App.Vector(24.954982, -45, 0), App.Vector(0, 0, 1), 1.7), False)
sketch15.addGeometry(Part.Circle(App.Vector(14.954982, -45, 0), App.Vector(0, 0, 1), 1.7), False)
sketch15.addGeometry(Part.Circle(App.Vector(-13.045018, -45, 0), App.Vector(0, 0, 1), 1.7), False)
sketch15.addGeometry(Part.Circle(App.Vector(-23.045018, -45, 0), App.Vector(0, 0, 1), 1.7), False)
sketch15.addConstraint(Sketcher.Constraint("Equal", 0, 1))
sketch15.addConstraint(Sketcher.Constraint("Equal", 1, 2))
sketch15.addConstraint(Sketcher.Constraint("Equal", 2, 3))
sketch15.addConstraint(Sketcher.Constraint("Horizontal", 0, 3, 1, 3))
sketch15.addConstraint(Sketcher.Constraint("Horizontal", 1, 3, 2, 3))
sketch15.addConstraint(Sketcher.Constraint("Horizontal", 2, 3, 3, 3))
sketch15.addConstraint(Sketcher.Constraint("Diameter", 0, Q("3.4 mm")))
sketch15.addConstraint(Sketcher.Constraint("DistanceY", 0, 3, -1, 1, Q("45 mm")))
sketch15.addConstraint(Sketcher.Constraint("DistanceX", 1, 3, 0, 3, Q("10 mm")))
sketch15.addConstraint(Sketcher.Constraint("DistanceX", 2, 3, 1, 3, Q("28 mm")))
sketch15.addConstraint(Sketcher.Constraint("DistanceX", 3, 3, 2, 3, Q("10 mm")))
sketch15.addConstraint(Sketcher.Constraint("DistanceX", -1, 1, 0, 3, Q("24.954982 mm")))
pocket10 = doc.addObject("PartDesign::Pocket", "Pocket009")
body.addObject(pocket10)
pocket10.Profile = sketch15
pocket10.Type = "ThroughAll"

doc.recompute()
